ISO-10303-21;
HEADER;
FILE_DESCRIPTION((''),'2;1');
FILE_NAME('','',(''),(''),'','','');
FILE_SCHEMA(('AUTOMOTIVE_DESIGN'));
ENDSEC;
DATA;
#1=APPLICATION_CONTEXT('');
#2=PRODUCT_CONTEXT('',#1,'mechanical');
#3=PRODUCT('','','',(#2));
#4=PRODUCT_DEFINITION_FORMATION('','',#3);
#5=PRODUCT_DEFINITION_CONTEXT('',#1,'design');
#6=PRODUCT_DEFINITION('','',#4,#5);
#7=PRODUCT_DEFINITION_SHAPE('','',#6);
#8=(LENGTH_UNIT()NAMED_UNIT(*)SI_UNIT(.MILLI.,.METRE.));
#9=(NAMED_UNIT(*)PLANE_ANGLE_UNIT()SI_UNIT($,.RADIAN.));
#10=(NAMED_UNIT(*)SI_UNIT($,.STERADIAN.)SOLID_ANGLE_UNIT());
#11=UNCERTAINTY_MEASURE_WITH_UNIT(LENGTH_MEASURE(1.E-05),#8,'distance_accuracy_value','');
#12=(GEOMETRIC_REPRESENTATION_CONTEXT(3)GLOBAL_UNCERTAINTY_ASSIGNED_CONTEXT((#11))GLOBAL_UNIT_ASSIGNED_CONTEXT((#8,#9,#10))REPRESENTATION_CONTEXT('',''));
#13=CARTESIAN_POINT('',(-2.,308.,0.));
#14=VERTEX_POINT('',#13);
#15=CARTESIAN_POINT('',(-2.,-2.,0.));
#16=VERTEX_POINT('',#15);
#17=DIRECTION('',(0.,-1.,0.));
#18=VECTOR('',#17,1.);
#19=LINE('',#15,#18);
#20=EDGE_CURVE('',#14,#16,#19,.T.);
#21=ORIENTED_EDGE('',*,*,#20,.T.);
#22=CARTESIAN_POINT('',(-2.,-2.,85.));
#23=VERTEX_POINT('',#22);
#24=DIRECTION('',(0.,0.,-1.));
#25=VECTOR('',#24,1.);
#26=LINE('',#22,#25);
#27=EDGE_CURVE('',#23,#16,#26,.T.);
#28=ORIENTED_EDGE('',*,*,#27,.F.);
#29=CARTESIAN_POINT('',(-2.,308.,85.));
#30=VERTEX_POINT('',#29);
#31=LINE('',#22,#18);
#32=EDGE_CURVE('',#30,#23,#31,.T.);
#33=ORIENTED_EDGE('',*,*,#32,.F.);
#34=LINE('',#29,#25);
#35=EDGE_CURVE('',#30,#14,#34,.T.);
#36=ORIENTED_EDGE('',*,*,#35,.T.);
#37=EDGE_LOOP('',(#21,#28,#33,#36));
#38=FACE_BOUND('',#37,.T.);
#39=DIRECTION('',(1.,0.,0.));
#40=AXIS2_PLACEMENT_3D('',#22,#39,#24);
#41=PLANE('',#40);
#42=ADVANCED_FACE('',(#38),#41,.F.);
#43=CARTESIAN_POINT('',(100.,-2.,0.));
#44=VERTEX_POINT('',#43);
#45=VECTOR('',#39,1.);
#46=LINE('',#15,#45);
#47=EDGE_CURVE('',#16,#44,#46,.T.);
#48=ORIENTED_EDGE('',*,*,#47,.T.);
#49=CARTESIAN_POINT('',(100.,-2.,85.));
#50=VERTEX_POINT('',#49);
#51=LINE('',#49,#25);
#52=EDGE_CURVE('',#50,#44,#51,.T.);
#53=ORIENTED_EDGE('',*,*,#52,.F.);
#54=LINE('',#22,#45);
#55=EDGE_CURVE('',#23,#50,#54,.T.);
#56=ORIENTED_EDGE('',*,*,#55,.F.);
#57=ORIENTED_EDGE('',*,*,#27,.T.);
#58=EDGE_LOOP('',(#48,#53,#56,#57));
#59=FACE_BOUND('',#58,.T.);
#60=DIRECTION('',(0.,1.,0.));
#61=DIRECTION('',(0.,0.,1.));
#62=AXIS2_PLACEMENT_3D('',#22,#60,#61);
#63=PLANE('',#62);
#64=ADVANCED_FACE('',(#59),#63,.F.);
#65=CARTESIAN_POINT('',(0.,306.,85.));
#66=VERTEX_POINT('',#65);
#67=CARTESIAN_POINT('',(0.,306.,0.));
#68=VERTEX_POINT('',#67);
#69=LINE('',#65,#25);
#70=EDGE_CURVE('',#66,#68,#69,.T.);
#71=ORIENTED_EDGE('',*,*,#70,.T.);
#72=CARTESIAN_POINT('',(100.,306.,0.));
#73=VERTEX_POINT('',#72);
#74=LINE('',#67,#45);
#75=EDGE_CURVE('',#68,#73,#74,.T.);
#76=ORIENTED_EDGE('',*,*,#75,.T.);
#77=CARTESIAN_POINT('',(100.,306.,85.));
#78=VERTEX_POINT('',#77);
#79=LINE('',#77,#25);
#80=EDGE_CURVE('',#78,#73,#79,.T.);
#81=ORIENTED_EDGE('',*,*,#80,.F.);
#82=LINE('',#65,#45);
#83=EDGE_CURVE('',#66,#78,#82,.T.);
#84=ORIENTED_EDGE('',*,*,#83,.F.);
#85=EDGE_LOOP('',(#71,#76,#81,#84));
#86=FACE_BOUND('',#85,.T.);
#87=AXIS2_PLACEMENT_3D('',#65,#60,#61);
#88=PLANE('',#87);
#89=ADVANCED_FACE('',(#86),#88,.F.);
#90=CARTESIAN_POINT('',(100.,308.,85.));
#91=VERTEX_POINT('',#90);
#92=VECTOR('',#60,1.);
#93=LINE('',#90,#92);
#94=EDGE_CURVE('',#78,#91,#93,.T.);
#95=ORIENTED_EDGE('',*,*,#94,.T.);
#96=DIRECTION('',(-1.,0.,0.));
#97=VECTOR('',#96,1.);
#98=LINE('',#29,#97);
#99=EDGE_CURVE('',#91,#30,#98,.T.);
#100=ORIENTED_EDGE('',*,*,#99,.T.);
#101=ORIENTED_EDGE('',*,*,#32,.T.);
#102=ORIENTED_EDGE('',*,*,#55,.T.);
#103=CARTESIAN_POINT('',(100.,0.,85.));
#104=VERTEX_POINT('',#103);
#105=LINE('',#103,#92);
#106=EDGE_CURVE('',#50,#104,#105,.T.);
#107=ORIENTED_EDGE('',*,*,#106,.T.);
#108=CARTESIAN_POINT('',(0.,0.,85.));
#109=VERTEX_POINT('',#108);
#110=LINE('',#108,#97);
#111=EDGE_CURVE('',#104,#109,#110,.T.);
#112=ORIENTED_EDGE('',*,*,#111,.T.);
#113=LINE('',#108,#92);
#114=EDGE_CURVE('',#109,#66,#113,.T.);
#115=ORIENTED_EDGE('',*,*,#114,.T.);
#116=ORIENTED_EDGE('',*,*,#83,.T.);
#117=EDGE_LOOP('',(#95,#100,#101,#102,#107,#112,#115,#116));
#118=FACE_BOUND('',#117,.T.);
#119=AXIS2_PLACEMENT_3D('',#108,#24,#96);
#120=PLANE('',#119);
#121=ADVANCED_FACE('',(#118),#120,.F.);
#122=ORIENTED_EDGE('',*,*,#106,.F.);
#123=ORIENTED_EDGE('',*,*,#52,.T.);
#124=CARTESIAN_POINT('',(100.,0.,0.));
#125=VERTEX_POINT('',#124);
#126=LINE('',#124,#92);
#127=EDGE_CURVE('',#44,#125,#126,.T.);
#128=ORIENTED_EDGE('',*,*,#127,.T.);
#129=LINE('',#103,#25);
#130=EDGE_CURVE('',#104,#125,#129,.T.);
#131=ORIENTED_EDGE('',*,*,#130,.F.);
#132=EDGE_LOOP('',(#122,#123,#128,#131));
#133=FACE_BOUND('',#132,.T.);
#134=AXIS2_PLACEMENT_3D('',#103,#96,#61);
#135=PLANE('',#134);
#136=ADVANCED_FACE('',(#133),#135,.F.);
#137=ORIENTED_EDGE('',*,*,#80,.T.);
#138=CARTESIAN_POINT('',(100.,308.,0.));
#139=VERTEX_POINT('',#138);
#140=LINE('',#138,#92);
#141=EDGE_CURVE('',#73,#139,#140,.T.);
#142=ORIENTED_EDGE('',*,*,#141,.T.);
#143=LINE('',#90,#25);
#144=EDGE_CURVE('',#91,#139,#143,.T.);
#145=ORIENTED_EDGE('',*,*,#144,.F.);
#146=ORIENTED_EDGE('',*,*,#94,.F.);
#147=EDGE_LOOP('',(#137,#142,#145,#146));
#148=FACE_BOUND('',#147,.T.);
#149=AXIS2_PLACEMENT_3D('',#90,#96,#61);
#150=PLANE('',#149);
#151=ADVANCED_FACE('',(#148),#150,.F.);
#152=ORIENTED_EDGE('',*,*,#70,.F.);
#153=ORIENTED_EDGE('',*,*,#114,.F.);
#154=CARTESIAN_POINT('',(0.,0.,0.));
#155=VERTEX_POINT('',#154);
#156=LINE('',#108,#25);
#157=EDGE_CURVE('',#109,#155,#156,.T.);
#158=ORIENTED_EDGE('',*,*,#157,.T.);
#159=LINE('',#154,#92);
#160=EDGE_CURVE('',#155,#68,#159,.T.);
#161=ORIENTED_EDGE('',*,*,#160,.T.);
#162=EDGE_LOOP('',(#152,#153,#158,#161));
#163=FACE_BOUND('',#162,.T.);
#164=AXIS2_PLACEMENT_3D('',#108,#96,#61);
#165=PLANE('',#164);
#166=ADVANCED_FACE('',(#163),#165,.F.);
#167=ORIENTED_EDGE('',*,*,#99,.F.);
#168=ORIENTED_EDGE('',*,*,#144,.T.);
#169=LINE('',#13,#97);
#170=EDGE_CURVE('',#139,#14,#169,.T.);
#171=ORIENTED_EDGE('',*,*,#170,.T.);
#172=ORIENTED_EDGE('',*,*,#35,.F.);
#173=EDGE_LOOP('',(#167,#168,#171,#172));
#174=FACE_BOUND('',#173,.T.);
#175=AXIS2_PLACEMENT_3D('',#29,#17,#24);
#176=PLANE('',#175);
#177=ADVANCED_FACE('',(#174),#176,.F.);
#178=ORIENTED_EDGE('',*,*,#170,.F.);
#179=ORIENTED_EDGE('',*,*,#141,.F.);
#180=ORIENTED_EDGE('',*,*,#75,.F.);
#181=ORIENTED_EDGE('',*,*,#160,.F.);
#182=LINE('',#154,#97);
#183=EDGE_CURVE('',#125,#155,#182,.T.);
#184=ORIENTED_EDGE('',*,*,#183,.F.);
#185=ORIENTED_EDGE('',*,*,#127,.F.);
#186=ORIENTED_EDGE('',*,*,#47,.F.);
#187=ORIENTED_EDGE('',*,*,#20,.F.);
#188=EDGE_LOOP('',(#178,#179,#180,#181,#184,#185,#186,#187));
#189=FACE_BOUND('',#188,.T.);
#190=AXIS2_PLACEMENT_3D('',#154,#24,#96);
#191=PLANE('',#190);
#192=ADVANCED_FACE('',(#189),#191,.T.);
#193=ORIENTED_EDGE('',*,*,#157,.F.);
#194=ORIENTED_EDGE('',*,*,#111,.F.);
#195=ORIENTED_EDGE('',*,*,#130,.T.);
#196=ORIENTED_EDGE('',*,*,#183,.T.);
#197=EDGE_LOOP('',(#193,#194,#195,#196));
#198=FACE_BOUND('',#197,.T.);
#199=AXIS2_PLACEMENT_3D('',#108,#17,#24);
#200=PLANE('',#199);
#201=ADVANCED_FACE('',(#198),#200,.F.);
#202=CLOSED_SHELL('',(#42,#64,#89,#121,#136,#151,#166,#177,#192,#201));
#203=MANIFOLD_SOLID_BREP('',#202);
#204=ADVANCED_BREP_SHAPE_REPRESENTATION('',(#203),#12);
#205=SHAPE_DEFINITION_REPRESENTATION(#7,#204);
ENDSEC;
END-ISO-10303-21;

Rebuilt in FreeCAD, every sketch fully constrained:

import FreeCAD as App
import Part
import Sketcher

V = App.Vector
Q = App.Units.Quantity


def add_polygon(sketch, points):
    """Adds a closed chain of lines whose ends are joined by coincident constraints."""
    first, n = sketch.GeometryCount, len(points)
    for a, b in zip(points, points[1:] + points[:1]):
        sketch.addGeometry(Part.LineSegment(App.Vector(*a, 0), App.Vector(*b, 0)), False)
    for i in range(n):
        sketch.addConstraint(Sketcher.Constraint("Coincident", first + i, 2, first + (i + 1) % n, 1))

doc = App.newDocument("Part")
params = doc.addObject("Spreadsheet::Sheet", "Params")
for row, (alias, value) in enumerate([
    ("sketch1_width", "100 mm"),
    ("sketch1_width2", "102 mm"),
    ("sketch1_height", "306 mm"),
    ("sketch1_height2", "2 mm"),
    ("pad1_length", "85 mm"),
], start=1):
    params.set(f"A{row}", alias)
    params.set(f"B{row}", "=" + value)
    params.setAlias(f"B{row}", alias)

body = doc.addObject("PartDesign::Body", "Body")

sketch1 = doc.addObject("Sketcher::SketchObject", "Sketch")
body.addObject(sketch1)
sketch1.AttachmentSupport = (doc.XY_Plane, [""])
sketch1.MapMode = "FlatFace"
add_polygon(sketch1, [(0, 0), (0, 306), (100, 306), (100, 308), (-2, 308), (-2, -2), (100, -2), (100, 0)])
sketch1.addConstraint(Sketcher.Constraint("Vertical", 0))
sketch1.addConstraint(Sketcher.Constraint("Horizontal", 1))
sketch1.addConstraint(Sketcher.Constraint("Vertical", 2))
sketch1.addConstraint(Sketcher.Constraint("Horizontal", 3))
sketch1.addConstraint(Sketcher.Constraint("Vertical", 4))
sketch1.addConstraint(Sketcher.Constraint("Horizontal", 5))
sketch1.addConstraint(Sketcher.Constraint("Vertical", 6))
sketch1.addConstraint(Sketcher.Constraint("Horizontal", 7))
sketch1.addConstraint(Sketcher.Constraint("Coincident", 7, 2, -1, 1))
sketch1.addConstraint(Sketcher.Constraint("Vertical", 2, 2, 5, 2))
sketch1.addConstraint(Sketcher.Constraint("Equal", 2, 6))
sketch1.addConstraint(Sketcher.Constraint("DistanceX", 1, 1, 1, 2, Q("100 mm")))
sketch1.addConstraint(Sketcher.Constraint("DistanceX", 3, 2, 3, 1, Q("102 mm")))
sketch1.addConstraint(Sketcher.Constraint("DistanceY", 0, 1, 0, 2, Q("306 mm")))
sketch1.addConstraint(Sketcher.Constraint("DistanceY", 2, 1, 2, 2, Q("2 mm")))
sketch1.setExpression("Constraints[19]", "Params.sketch1_width")
sketch1.setExpression("Constraints[20]", "Params.sketch1_width2")
sketch1.setExpression("Constraints[21]", "Params.sketch1_height")
sketch1.setExpression("Constraints[22]", "Params.sketch1_height2")
pad1 = doc.addObject("PartDesign::Pad", "Pad")
body.addObject(pad1)
pad1.Profile = sketch1
pad1.setExpression("Length", "Params.pad1_length")

doc.recompute()
